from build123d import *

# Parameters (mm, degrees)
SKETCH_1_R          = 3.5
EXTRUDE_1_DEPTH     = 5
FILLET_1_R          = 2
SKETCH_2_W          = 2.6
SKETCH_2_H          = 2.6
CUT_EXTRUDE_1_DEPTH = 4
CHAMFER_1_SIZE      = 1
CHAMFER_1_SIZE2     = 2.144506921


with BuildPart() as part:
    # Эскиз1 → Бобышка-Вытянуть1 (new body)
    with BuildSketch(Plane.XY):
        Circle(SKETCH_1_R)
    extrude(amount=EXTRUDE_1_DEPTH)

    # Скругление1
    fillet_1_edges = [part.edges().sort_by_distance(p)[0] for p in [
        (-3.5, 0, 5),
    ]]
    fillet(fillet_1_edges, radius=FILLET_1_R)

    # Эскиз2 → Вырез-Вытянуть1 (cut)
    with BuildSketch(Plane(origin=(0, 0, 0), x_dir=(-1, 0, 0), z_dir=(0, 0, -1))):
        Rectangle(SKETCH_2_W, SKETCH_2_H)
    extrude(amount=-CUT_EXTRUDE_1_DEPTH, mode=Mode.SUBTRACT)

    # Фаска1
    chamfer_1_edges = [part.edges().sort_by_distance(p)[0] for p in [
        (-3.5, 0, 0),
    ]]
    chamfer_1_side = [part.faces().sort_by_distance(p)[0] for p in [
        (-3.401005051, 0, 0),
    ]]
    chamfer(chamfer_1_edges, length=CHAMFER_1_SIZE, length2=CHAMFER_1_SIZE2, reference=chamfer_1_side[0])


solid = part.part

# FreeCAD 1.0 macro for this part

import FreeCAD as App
import Part
import Sketcher
Q = App.Units.Quantity


def edges_at(feature, points):
    """Names of the edges that pass closest to the given points."""
    edges = feature.Shape.Edges
    near = lambda p: min(range(len(edges)), key=lambda i: edges[i].distToShape(Part.Vertex(*p))[0])
    return sorted({f"Edge{near(p) + 1}" for p in points})


def add_polygon(sketch, points):
    """Adds a closed chain of lines whose ends are joined by coincident constraints."""
    first, n = sketch.GeometryCount, len(points)
    for a, b in zip(points, points[1:] + points[:1]):
        sketch.addGeometry(Part.LineSegment(App.Vector(*a, 0), App.Vector(*b, 0)), False)
    for i in range(n):
        sketch.addConstraint(Sketcher.Constraint("Coincident", first + i, 2, first + (i + 1) % n, 1))

doc = App.newDocument("Part")
params = doc.addObject("Spreadsheet::Sheet", "Params")
for row, (alias, value) in enumerate([
    ("sketch1_diameter", "7 mm"),
    ("pad1_length", "5 mm"),
    ("fillet_radius", "2 mm"),
    ("sketch2_width", "2.6 mm"),
    ("pocket1_length", "4 mm"),
    ("chamfer_size", "1 mm"),
    ("chamfer_size2", "2.144507 mm"),
], start=1):
    params.set(f"A{row}", alias)
    params.set(f"B{row}", "=" + value)
    params.setAlias(f"B{row}", alias)

body = doc.addObject("PartDesign::Body", "Body")

# Sketch on XY plane
sketch1 = doc.addObject("Sketcher::SketchObject", "Sketch")
body.addObject(sketch1)
sketch1.AttachmentSupport = (doc.XY_Plane, [""])
sketch1.MapMode = "FlatFace"
sketch1.addGeometry(Part.Circle(App.Vector(0, 0, 0), App.Vector(0, 0, 1), 3.5), False)
sketch1.addConstraint(Sketcher.Constraint("Coincident", 0, 3, -1, 1))
sketch1.addConstraint(Sketcher.Constraint("Diameter", 0, Q("7 mm")))
sketch1.setExpression("Constraints[1]", "Params.sketch1_diameter")
pad1 = doc.addObject("PartDesign::Pad", "Pad")
body.addObject(pad1)
pad1.Profile = sketch1
pad1.setExpression("Length", "Params.pad1_length")
doc.recompute()

fillet = doc.addObject("PartDesign::Fillet", "Fillet")
body.addObject(fillet)
fillet.Base = (pad1, edges_at(pad1, [(-3.5, 0, 5)]))
fillet.setExpression("Radius", "Params.fillet_radius")

# Sketch on XY plane
sketch2 = doc.addObject("Sketcher::SketchObject", "Sketch001")
body.addObject(sketch2)
sketch2.AttachmentSupport = (doc.XY_Plane, [""])
sketch2.MapMode = "FlatFace"
add_polygon(sketch2, [(1.3, 1.3), (1.3, -1.3), (-1.3, -1.3), (-1.3, 1.3)])  # lines 0-3
sketch2.addConstraint(Sketcher.Constraint("Vertical", 0))
sketch2.addConstraint(Sketcher.Constraint("Horizontal", 1))
sketch2.addConstraint(Sketcher.Constraint("Vertical", 2))
sketch2.addConstraint(Sketcher.Constraint("Horizontal", 3))
sketch2.addConstraint(Sketcher.Constraint("Symmetric", 0, 2, 2, 2, -1, 1))
sketch2.addConstraint(Sketcher.Constraint("Equal", 3, 0))
sketch2.addConstraint(Sketcher.Constraint("DistanceX", 1, 2, 1, 1, Q("2.6 mm")))
sketch2.setExpression("Constraints[10]", "Params.sketch2_width")
pocket1 = doc.addObject("PartDesign::Pocket", "Pocket")
body.addObject(pocket1)
pocket1.Profile = sketch2
pocket1.setExpression("Length", "Params.pocket1_length")
pocket1.Reversed = True
doc.recompute()

chamfer = doc.addObject("PartDesign::Chamfer", "Chamfer")
body.addObject(chamfer)
chamfer.Base = (pocket1, edges_at(pocket1, [(-3.5, 0, 0)]))
chamfer.ChamferType = "Two distances"
chamfer.setExpression("Size", "Params.chamfer_size")
chamfer.setExpression("Size2", "Params.chamfer_size2")
chamfer.FlipDirection = True

doc.recompute()
